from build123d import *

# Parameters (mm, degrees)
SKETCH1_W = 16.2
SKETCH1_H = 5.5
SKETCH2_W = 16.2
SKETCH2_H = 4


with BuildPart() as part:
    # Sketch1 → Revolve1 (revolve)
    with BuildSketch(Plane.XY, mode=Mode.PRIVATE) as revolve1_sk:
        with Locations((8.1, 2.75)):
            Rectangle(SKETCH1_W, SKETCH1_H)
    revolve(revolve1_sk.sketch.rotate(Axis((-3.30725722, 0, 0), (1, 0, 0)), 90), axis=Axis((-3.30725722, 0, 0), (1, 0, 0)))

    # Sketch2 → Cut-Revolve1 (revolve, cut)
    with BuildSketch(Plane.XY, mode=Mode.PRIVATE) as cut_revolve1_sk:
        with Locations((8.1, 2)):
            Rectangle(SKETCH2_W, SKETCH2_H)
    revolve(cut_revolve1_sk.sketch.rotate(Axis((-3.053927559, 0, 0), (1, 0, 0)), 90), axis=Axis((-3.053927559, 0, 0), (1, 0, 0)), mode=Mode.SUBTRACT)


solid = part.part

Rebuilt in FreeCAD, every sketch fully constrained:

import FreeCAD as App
import Part
import Sketcher


def add_polygon(sketch, points):
    """Adds a closed chain of lines whose ends are joined by coincident constraints."""
    first, n = sketch.GeometryCount, len(points)
    for a, b in zip(points, points[1:] + points[:1]):
        sketch.addGeometry(Part.LineSegment(App.Vector(*a, 0), App.Vector(*b, 0)), False)
    for i in range(n):
        sketch.addConstraint(Sketcher.Constraint("Coincident", first + i, 2, first + (i + 1) % n, 1))

doc = App.newDocument("Part")
body = doc.addObject("PartDesign::Body", "Body")

# Sketch on XY plane
sketch1 = body.newObject("Sketcher::SketchObject", "Sketch")
sketch1.AttachmentSupport = (doc.getObject("XY_Plane"), [""])
sketch1.MapMode = "FlatFace"
add_polygon(sketch1, [(0, 6), (0, 0), (16, 0), (16, 6)])  # lines 0-3
sketch1.addConstraint([
    Sketcher.Constraint("Vertical", 0),
    Sketcher.Constraint("Horizontal", 1),
    Sketcher.Constraint("Vertical", 2),
    Sketcher.Constraint("Horizontal", 3),
    Sketcher.Constraint("Coincident", 0, 2, -1, 1),
    Sketcher.Constraint("DistanceX", 1, 1, 1, 2, 16.2),
    Sketcher.Constraint("DistanceY", 0, 2, 0, 1, 5.5),
])
revolution = body.newObject("PartDesign::Revolution", "Revolution")
revolution.Profile = sketch1
revolution.ReferenceAxis = (sketch1, ["H_Axis"])
revolution.Angle = 360

# Sketch on XY plane
sketch2 = body.newObject("Sketcher::SketchObject", "Sketch001")
sketch2.AttachmentSupport = (doc.getObject("XY_Plane"), [""])
sketch2.MapMode = "FlatFace"
add_polygon(sketch2, [(0, 4), (0, 0), (16.2, 0), (16.2, 4)])  # lines 0-3
sketch2.addConstraint([
    Sketcher.Constraint("Vertical", 0),
    Sketcher.Constraint("Horizontal", 1),
    Sketcher.Constraint("Vertical", 2),
    Sketcher.Constraint("Horizontal", 3),
    Sketcher.Constraint("Coincident", 0, 2, -1, 1),
    Sketcher.Constraint("DistanceY", 0, 2, 0, 1, 4.0),
    Sketcher.Constraint("DistanceX", 1, 1, 1, 2, 16.2),
])
groove = body.newObject("PartDesign::Groove", "Groove")
groove.Profile = sketch2
groove.ReferenceAxis = (sketch2, ["H_Axis"])
groove.Angle = 360

doc.recompute()
